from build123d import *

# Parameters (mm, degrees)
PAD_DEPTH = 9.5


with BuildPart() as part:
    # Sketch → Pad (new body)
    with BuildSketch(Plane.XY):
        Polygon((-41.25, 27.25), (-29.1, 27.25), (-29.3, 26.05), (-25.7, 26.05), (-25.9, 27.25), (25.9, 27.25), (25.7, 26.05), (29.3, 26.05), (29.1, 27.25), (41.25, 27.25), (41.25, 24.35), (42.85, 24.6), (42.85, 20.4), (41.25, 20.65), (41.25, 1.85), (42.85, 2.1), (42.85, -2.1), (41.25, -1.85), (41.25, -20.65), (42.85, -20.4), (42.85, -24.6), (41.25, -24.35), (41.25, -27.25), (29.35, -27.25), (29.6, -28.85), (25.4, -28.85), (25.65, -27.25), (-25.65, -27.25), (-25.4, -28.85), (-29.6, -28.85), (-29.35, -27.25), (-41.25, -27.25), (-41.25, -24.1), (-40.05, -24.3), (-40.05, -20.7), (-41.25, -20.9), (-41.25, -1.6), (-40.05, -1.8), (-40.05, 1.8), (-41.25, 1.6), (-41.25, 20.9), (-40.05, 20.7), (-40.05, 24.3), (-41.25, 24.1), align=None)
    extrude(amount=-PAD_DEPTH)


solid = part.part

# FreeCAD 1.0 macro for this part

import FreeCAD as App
import Part
import Sketcher
from FreeCAD import Vector


def add_polygon(sketch, points):
    """Adds a closed chain of lines whose ends are joined by coincident constraints."""
    first, n = sketch.GeometryCount, len(points)
    for a, b in zip(points, points[1:] + points[:1]):
        sketch.addGeometry(Part.LineSegment(App.Vector(*a, 0), App.Vector(*b, 0)), False)
    for i in range(n):
        sketch.addConstraint(Sketcher.Constraint("Coincident", first + i, 2, first + (i + 1) % n, 1))

doc = App.newDocument("Part")
body = doc.addObject("PartDesign::Body", "Body")

# Sketch on XY plane
sketch1 = doc.addObject("Sketcher::SketchObject", "Sketch")
body.addObject(sketch1)
sketch1.AttachmentSupport = (doc.XY_Plane, [""])
sketch1.MapMode = "FlatFace"
add_polygon(sketch1, [(-29.1, 27.25), (-41.25, 27.25), (-41.25, 24.1), (-40.05, 24.3), (-40.05, 20.7), (-41.25, 20.9), (-41.25, 1.6), (-40.05, 1.8), (-40.05, -1.8), (-41.25, -1.6), (-41.25, -20.9), (-40.05, -20.7), (-40.05, -24.3), (-41.25, -24.1), (-41.25, -27.25), (-29.35, -27.25), (-29.6, -28.85), (-25.4, -28.85), (-25.65, -27.25), (25.65, -27.25), (25.4, -28.85), (29.6, -28.85), (29.35, -27.25), (41.25, -27.25), (41.25, -24.35), (42.85, -24.6), (42.85, -20.4), (41.25, -20.65), (41.25, -1.85), (42.85, -2.1), (42.85, 2.1), (41.25, 1.85), (41.25, 20.65), (42.85, 20.4), (42.85, 24.6), (41.25, 24.35), (41.25, 27.25), (29.1, 27.25), (29.3, 26.05), (25.7, 26.05), (25.9, 27.25), (-25.9, 27.25), (-25.7, 26.05), (-29.3, 26.05)])  # lines 0-43
sketch1.addConstraint(Sketcher.Constraint("Horizontal", 0))
sketch1.addConstraint(Sketcher.Constraint("Vertical", 1))
sketch1.addConstraint(Sketcher.Constraint("Vertical", 3))
sketch1.addConstraint(Sketcher.Constraint("Vertical", 5))
sketch1.addConstraint(Sketcher.Constraint("Vertical", 7))
sketch1.addConstraint(Sketcher.Constraint("Vertical", 9))
sketch1.addConstraint(Sketcher.Constraint("Vertical", 11))
sketch1.addConstraint(Sketcher.Constraint("Vertical", 13))
sketch1.addConstraint(Sketcher.Constraint("Horizontal", 14))
sketch1.addConstraint(Sketcher.Constraint("Horizontal", 16))
sketch1.addConstraint(Sketcher.Constraint("Horizontal", 18))
sketch1.addConstraint(Sketcher.Constraint("Horizontal", 20))
sketch1.addConstraint(Sketcher.Constraint("Horizontal", 22))
sketch1.addConstraint(Sketcher.Constraint("Vertical", 23))
sketch1.addConstraint(Sketcher.Constraint("Vertical", 25))
sketch1.addConstraint(Sketcher.Constraint("Vertical", 27))
sketch1.addConstraint(Sketcher.Constraint("Vertical", 29))
sketch1.addConstraint(Sketcher.Constraint("Vertical", 31))
sketch1.addConstraint(Sketcher.Constraint("Vertical", 33))
sketch1.addConstraint(Sketcher.Constraint("Vertical", 35))
sketch1.addConstraint(Sketcher.Constraint("Horizontal", 36))
sketch1.addConstraint(Sketcher.Constraint("Horizontal", 38))
sketch1.addConstraint(Sketcher.Constraint("Horizontal", 40))
sketch1.addConstraint(Sketcher.Constraint("Horizontal", 42))
sketch1.addConstraint(Sketcher.Constraint("Symmetric", 0, 2, 22, 2, -1, 1))
sketch1.addConstraint(Sketcher.Constraint("Symmetric", 13, 2, 35, 2, -1, 1))
sketch1.addConstraint(Sketcher.Constraint("Symmetric", 16, 2, 19, 2, -2))
sketch1.addConstraint(Sketcher.Constraint("Symmetric", 14, 2, 21, 2, -2))
sketch1.addConstraint(Sketcher.Constraint("Symmetric", 38, 2, 41, 2, -2))
sketch1.addConstraint(Sketcher.Constraint("Symmetric", 5, 2, 8, 2, -1))
sketch1.addConstraint(Sketcher.Constraint("Symmetric", 3, 2, 10, 2, -1))
sketch1.addConstraint(Sketcher.Constraint("Symmetric", 1, 2, 12, 2, -1))
sketch1.addConstraint(Sketcher.Constraint("Symmetric", 27, 2, 30, 2, -1))
sketch1.addConstraint(Sketcher.Constraint("Symmetric", 25, 2, 32, 2, -1))
sketch1.addConstraint(Sketcher.Constraint("Parallel", 2, 6))
sketch1.addConstraint(Sketcher.Constraint("Parallel", 4, 8))
sketch1.addConstraint(Sketcher.Constraint("Parallel", 6, 10))
sketch1.addConstraint(Sketcher.Constraint("Parallel", 8, 12))
sketch1.addConstraint(Sketcher.Constraint("Parallel", 15, 19))
sketch1.addConstraint(Sketcher.Constraint("Parallel", 17, 21))
sketch1.addConstraint(Sketcher.Constraint("Perpendicular", 19, 24))
sketch1.addConstraint(Sketcher.Constraint("Perpendicular", 21, 26))
sketch1.addConstraint(Sketcher.Constraint("Parallel", 24, 28))
sketch1.addConstraint(Sketcher.Constraint("Parallel", 26, 30))
sketch1.addConstraint(Sketcher.Constraint("Parallel", 28, 32))
sketch1.addConstraint(Sketcher.Constraint("Parallel", 30, 34))
sketch1.addConstraint(Sketcher.Constraint("Perpendicular", 10, 37))
sketch1.addConstraint(Sketcher.Constraint("Perpendicular", 12, 39))
sketch1.addConstraint(Sketcher.Constraint("Parallel", 37, 41))
sketch1.addConstraint(Sketcher.Constraint("Parallel", 39, 43))
sketch1.addConstraint(Sketcher.Constraint("Horizontal", 14, 2, 17, 2))
sketch1.addConstraint(Sketcher.Constraint("Horizontal", 36, 2, 39, 2))
sketch1.addConstraint(Sketcher.Constraint("Vertical", 1, 2, 4, 2))
sketch1.addConstraint(Sketcher.Constraint("Vertical", 3, 2, 6, 2))
sketch1.addConstraint(Sketcher.Constraint("Vertical", 23, 2, 26, 2))
sketch1.addConstraint(Sketcher.Constraint("Vertical", 25, 2, 28, 2))
sketch1.addConstraint(Sketcher.Constraint("Equal", 16, 20))
sketch1.addConstraint(Sketcher.Constraint("Equal", 0, 36))
sketch1.addConstraint(Sketcher.Constraint("Equal", 38, 42))
sketch1.addConstraint(Sketcher.Constraint("Equal", 42, 3))
sketch1.addConstraint(Sketcher.Constraint("Equal", 3, 7))
sketch1.addConstraint(Sketcher.Constraint("Equal", 20, 25))
sketch1.addConstraint(Sketcher.Constraint("Equal", 25, 29))
sketch1.addConstraint(Sketcher.Constraint("Equal", 29, 33))
sketch1.addConstraint(Sketcher.Constraint("Equal", 21, 24))
sketch1.addConstraint(Sketcher.Constraint("Equal", 12, 37))
sketch1.addConstraint(Sketcher.Constraint("DistanceX", 14, 1, 14, 2, 11.9))
sketch1.addConstraint(Sketcher.Constraint("DistanceX", 16, 1, 16, 2, 4.2))
sketch1.addConstraint(Sketcher.Constraint("DistanceX", 18, 1, 18, 2, 51.3))
sketch1.addConstraint(Sketcher.Constraint("DistanceX", 38, 2, 38, 1, 3.6))
sketch1.addConstraint(Sketcher.Constraint("DistanceX", 40, 2, 40, 1, 51.8))
sketch1.addConstraint(Sketcher.Constraint("DistanceY", 5, 2, 5, 1, 19.3))
sketch1.addConstraint(Sketcher.Constraint("DistanceY", 23, 1, 23, 2, 2.9))
sketch1.addConstraint(Sketcher.Constraint("DistanceY", 27, 1, 27, 2, 18.8))
sketch1.addConstraint(Sketcher.Constraint("DistanceX", 14, 2, 18, 2, 55.0))
sketch1.addConstraint(Sketcher.Constraint("DistanceX", 0, 2, 0, 1, 12.15))
sketch1.addConstraint(Sketcher.Constraint("DistanceX", 1, 2, 2, 2, 1.2))
sketch1.addConstraint(Sketcher.Constraint("DistanceY", 15, 2, 14, 2, 1.6))
pad1 = doc.addObject("PartDesign::Pad", "Pad")
body.addObject(pad1)
pad1.Profile = sketch1
pad1.Length = 9.5
pad1.Reversed = True

doc.recompute()
